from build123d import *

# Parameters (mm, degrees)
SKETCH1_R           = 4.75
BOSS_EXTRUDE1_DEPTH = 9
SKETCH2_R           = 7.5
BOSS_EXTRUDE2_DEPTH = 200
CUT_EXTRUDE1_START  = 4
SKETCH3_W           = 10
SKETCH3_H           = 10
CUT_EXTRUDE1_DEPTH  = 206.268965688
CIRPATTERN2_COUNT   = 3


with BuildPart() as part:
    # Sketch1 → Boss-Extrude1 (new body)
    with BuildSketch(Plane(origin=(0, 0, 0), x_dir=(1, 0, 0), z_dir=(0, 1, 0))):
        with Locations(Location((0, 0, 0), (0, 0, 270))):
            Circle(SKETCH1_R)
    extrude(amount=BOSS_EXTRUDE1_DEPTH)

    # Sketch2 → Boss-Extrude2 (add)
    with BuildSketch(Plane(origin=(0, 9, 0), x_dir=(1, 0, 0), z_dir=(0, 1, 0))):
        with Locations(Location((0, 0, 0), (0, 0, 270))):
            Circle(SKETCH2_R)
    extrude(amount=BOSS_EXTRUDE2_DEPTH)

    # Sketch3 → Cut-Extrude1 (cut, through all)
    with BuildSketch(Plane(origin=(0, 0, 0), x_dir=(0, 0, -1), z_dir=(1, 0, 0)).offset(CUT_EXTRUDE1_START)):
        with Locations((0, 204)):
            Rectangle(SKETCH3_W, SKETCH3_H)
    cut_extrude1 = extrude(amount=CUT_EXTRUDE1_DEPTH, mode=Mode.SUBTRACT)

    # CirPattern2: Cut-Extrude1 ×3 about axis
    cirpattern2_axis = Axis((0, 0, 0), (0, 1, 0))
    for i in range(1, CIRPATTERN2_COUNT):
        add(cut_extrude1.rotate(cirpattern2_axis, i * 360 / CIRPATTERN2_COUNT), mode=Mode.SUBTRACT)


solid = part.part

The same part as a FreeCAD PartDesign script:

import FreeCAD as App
import Part
import Sketcher
from FreeCAD import Vector


def add_polygon(sketch, points):
    """Adds a closed chain of lines whose ends are joined by coincident constraints."""
    first, n = sketch.GeometryCount, len(points)
    for a, b in zip(points, points[1:] + points[:1]):
        sketch.addGeometry(Part.LineSegment(App.Vector(*a, 0), App.Vector(*b, 0)), False)
    for i in range(n):
        sketch.addConstraint(Sketcher.Constraint("Coincident", first + i, 2, first + (i + 1) % n, 1))

doc = App.newDocument("Part")
body = doc.addObject("PartDesign::Body", "Body")

# Sketch on XZ plane
sketch1 = body.newObject("Sketcher::SketchObject", "Sketch")
sketch1.AttachmentSupport = (doc.getObject("XZ_Plane"), [""])
sketch1.MapMode = "FlatFace"
sketch1.addGeometry(Part.Circle(Vector(0, 0, 0), Vector(0, 0, 1), 4.75), False)
sketch1.addConstraint([
    Sketcher.Constraint("Coincident", 0, 3, -1, 1),
    Sketcher.Constraint("Diameter", 0, 9.5),
])
pad1 = body.newObject("PartDesign::Pad", "Pad")
pad1.Profile = sketch1
pad1.Length = 9
pad1.Reversed = True

# Sketch on XZ plane
sketch2 = body.newObject("Sketcher::SketchObject", "Sketch001")
sketch2.AttachmentSupport = (doc.getObject("XZ_Plane"), [""])
sketch2.MapMode = "FlatFace"
sketch2.AttachmentOffset = App.Placement(Vector(0, 0, -9), App.Rotation())
sketch2.addGeometry(Part.Circle(Vector(0, 0, 0), Vector(0, 0, 1), 7.5), False)
sketch2.addConstraint([
    Sketcher.Constraint("Coincident", 0, 3, -1, 1),
    Sketcher.Constraint("Diameter", 0, 15.0),
])
pad2 = body.newObject("PartDesign::Pad", "Pad001")
pad2.Profile = sketch2
pad2.Length = 200
pad2.Reversed = True

# Sketch on YZ plane
sketch3 = body.newObject("Sketcher::SketchObject", "Sketch002")
sketch3.AttachmentSupport = (doc.getObject("YZ_Plane"), [""])
sketch3.MapMode = "FlatFace"
sketch3.AttachmentOffset = App.Placement(Vector(0, 0, 4), App.Rotation())
add_polygon(sketch3, [(209, 5), (199, 5), (199, -5), (209, -5)])  # lines 0-3
sketch3.addConstraint([
    Sketcher.Constraint("Horizontal", 0),
    Sketcher.Constraint("Vertical", 1),
    Sketcher.Constraint("Horizontal", 2),
    Sketcher.Constraint("Vertical", 3),
    Sketcher.Constraint("Equal", 2, 1),
    Sketcher.Constraint("DistanceX", 0, 2, 0, 1, 10.0),
    Sketcher.Constraint("DistanceX", -1, 1, 0, 2, 199.0),
    Sketcher.Constraint("DistanceY", -1, 1, 0, 2, 5.0),
])
pocket1 = body.newObject("PartDesign::Pocket", "Pocket")
pocket1.Profile = sketch3
pocket1.Type = "ThroughAll"
pocket1.Reversed = True
doc.recompute()

polarpattern = body.newObject("PartDesign::PolarPattern", "PolarPattern")
polarpattern.Originals = [pocket1]
polarpattern.Axis = (doc.getObject("Y_Axis"), [""])
polarpattern.Angle = 360
polarpattern.Occurrences = 3
body.Tip = polarpattern

doc.recompute()
